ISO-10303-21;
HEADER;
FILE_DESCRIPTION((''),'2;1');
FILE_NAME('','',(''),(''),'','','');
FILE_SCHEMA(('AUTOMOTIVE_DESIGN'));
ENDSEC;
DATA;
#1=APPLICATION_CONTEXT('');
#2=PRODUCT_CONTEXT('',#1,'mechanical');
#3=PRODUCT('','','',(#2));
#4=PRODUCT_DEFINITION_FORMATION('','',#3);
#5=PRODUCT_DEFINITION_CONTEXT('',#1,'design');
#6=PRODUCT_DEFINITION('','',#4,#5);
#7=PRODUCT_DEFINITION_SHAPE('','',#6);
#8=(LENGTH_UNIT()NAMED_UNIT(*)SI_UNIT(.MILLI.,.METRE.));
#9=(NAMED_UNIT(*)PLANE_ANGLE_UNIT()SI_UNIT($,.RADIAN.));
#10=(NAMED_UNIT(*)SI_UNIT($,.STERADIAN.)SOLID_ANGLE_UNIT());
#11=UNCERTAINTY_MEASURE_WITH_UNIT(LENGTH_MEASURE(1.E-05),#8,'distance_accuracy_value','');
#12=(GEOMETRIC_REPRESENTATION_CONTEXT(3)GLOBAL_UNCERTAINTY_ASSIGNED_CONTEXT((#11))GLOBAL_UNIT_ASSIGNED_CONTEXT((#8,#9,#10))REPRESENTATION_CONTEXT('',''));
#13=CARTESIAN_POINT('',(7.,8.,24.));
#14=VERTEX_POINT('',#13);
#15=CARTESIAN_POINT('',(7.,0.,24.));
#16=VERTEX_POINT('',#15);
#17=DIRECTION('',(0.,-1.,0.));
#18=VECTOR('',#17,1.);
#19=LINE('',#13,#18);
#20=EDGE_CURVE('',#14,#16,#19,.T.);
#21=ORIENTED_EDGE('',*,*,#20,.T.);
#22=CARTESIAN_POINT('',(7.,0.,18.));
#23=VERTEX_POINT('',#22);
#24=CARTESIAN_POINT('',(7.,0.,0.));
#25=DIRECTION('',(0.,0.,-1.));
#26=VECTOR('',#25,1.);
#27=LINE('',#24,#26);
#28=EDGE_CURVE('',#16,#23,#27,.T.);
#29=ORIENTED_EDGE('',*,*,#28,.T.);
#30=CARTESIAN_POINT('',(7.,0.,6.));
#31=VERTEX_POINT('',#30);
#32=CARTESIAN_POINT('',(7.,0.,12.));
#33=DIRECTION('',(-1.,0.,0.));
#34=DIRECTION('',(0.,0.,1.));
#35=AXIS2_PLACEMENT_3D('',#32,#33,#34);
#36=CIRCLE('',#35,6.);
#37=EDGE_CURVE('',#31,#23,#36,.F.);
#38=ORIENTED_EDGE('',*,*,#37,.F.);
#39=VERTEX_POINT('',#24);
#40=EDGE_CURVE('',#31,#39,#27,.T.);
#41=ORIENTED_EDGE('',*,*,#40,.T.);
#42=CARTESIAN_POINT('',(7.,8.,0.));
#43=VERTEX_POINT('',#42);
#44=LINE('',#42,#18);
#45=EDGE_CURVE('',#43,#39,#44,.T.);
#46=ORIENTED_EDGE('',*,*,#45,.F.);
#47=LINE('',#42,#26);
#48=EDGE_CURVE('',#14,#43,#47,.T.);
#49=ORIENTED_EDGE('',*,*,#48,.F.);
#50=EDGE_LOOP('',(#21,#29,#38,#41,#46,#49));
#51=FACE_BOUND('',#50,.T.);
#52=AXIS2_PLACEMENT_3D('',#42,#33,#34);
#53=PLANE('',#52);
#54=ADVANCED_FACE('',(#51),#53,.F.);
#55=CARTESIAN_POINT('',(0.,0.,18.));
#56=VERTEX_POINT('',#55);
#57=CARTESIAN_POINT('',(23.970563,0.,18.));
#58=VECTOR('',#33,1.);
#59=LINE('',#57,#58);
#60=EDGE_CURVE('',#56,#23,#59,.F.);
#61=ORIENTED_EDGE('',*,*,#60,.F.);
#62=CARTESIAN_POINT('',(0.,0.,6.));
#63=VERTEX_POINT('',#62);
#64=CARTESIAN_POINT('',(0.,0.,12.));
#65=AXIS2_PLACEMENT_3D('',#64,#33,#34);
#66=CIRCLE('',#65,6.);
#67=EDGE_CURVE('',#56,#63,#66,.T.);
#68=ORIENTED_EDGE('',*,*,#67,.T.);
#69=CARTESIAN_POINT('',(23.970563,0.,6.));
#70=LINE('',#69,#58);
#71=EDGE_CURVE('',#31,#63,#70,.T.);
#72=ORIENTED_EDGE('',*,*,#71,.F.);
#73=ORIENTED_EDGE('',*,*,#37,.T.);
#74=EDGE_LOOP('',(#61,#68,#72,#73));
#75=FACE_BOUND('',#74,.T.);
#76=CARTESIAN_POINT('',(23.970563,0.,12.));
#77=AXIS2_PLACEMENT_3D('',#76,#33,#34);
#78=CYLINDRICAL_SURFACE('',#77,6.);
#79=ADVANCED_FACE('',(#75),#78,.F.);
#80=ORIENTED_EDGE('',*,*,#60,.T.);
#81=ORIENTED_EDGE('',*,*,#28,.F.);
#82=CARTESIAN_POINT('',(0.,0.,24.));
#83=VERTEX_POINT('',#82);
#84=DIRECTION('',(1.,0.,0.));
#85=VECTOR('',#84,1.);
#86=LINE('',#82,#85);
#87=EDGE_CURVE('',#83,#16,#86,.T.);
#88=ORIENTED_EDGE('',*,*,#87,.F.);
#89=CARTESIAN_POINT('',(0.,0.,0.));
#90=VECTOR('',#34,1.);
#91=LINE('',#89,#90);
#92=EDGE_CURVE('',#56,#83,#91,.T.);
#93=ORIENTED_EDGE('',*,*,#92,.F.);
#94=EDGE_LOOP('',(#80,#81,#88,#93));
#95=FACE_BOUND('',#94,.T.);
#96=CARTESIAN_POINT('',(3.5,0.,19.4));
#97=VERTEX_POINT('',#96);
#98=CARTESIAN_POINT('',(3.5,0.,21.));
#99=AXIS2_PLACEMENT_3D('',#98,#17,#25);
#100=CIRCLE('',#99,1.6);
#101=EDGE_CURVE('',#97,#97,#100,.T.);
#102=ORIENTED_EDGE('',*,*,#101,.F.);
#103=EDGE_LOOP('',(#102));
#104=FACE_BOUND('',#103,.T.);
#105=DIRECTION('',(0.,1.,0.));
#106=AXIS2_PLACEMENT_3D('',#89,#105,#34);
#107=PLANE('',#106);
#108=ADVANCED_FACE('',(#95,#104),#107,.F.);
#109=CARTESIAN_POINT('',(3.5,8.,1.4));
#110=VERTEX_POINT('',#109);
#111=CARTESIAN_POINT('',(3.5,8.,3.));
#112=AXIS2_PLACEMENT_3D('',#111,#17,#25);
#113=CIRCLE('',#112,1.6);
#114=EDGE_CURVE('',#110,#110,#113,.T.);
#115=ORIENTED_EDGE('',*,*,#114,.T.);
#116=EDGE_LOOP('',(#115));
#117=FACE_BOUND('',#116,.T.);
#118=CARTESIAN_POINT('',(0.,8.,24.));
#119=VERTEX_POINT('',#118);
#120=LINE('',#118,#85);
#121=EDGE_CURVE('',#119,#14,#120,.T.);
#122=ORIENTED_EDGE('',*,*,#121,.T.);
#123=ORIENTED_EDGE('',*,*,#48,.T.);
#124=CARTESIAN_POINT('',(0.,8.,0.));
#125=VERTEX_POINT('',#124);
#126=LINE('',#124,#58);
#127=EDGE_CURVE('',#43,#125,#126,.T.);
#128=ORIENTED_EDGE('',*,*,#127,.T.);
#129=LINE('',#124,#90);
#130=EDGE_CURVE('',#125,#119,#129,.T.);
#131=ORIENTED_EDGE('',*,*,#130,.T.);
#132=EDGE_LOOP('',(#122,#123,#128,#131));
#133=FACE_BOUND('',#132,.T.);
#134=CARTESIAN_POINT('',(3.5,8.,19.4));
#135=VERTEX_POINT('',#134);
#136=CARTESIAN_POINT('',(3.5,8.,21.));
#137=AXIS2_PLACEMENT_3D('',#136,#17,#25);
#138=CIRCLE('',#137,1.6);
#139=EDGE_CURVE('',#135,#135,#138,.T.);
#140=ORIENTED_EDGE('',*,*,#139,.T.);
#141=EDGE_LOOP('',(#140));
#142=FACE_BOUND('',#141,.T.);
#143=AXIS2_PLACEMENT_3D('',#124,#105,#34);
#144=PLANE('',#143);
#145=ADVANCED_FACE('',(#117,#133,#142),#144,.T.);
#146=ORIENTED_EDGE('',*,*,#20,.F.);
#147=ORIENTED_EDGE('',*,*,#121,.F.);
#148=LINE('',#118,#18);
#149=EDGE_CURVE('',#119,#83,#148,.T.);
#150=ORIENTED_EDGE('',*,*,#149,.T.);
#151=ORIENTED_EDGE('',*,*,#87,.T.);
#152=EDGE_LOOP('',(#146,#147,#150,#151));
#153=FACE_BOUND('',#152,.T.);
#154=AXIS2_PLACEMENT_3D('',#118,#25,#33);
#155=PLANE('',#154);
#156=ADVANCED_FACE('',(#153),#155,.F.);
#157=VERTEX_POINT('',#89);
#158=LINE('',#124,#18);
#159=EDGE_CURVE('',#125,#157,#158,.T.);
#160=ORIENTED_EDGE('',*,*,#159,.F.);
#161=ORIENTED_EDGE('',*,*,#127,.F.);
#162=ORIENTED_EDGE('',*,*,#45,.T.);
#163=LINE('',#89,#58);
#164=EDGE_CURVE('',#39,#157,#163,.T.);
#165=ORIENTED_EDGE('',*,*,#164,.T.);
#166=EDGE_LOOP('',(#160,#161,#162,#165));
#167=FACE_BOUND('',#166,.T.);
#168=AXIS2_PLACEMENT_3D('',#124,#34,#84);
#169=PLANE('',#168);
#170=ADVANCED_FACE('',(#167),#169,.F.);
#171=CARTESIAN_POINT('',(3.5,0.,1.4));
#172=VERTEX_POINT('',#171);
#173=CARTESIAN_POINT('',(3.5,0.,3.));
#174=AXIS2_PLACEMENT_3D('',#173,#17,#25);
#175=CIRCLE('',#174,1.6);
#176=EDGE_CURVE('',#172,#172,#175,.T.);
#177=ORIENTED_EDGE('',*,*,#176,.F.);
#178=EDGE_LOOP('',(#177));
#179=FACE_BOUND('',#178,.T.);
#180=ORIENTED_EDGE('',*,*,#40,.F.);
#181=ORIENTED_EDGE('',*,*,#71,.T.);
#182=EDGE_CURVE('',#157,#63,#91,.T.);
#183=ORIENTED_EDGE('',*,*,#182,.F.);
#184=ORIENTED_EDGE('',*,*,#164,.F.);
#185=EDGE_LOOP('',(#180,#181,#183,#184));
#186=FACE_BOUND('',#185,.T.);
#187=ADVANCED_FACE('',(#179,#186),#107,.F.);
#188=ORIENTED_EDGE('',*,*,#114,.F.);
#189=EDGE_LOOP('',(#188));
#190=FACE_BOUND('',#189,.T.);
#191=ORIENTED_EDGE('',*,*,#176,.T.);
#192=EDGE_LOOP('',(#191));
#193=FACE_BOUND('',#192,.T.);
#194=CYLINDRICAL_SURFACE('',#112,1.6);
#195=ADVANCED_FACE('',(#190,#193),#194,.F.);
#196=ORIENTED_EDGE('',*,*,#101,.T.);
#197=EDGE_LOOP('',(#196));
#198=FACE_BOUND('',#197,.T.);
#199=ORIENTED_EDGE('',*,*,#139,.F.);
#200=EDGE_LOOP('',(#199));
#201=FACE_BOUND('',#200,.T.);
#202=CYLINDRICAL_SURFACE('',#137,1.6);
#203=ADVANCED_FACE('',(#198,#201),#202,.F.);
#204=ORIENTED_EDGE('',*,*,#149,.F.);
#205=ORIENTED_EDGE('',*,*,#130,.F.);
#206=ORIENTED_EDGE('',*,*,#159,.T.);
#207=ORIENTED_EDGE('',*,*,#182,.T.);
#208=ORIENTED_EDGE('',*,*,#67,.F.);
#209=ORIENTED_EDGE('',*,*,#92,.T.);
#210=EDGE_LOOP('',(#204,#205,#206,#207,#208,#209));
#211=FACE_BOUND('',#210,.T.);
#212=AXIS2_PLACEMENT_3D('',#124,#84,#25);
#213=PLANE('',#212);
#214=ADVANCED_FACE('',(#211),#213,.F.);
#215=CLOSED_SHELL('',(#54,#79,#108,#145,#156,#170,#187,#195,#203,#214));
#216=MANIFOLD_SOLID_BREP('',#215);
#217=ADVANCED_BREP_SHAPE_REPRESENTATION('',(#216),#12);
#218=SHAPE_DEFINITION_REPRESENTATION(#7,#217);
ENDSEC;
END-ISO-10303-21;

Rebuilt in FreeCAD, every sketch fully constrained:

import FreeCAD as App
import Part
import Sketcher

V = App.Vector
Q = App.Units.Quantity

doc = App.newDocument("Part")
body = doc.addObject("PartDesign::Body", "Body")

sketch1 = body.newObject("Sketcher::SketchObject", "Sketch")
sketch1.AttachmentSupport = (doc.getObject("XZ_Plane"), [""])
sketch1.MapMode = "FlatFace"
sketch1.addGeometry(Part.LineSegment(V(0, 0, 0), V(0, 24, 0)), False)
sketch1.addGeometry(Part.LineSegment(V(0, 24, 0), V(7, 24, 0)), False)
sketch1.addGeometry(Part.LineSegment(V(7, 24, 0), V(7, 0, 0)), False)
sketch1.addGeometry(Part.LineSegment(V(7, 0, 0), V(0, 0, 0)), False)
sketch1.addConstraint(Sketcher.Constraint("Coincident", 0, 2, 1, 1))
sketch1.addConstraint(Sketcher.Constraint("Coincident", 1, 2, 2, 1))
sketch1.addConstraint(Sketcher.Constraint("Coincident", 2, 2, 3, 1))
sketch1.addConstraint(Sketcher.Constraint("Coincident", 3, 2, 0, 1))
sketch1.addConstraint(Sketcher.Constraint("Vertical", 0))
sketch1.addConstraint(Sketcher.Constraint("Horizontal", 1))
sketch1.addConstraint(Sketcher.Constraint("Vertical", 2))
sketch1.addConstraint(Sketcher.Constraint("Horizontal", 3))
sketch1.addConstraint(Sketcher.Constraint("Coincident", 3, 2, -1, 1))
sketch1.addConstraint(Sketcher.Constraint("DistanceX", 1, 1, 1, 2, Q("7 mm")))
sketch1.addConstraint(Sketcher.Constraint("DistanceY", 0, 1, 0, 2, Q("24 mm")))
pad1 = body.newObject("PartDesign::Pad", "Pad")
pad1.Profile = sketch1
pad1.Length = 8
pad1.Reversed = True

sketch2 = body.newObject("Sketcher::SketchObject", "Sketch001")
sketch2.AttachmentSupport = (doc.getObject("YZ_Plane"), [""])
sketch2.MapMode = "FlatFace"
sketch2.addGeometry(Part.Circle(V(0, 12, 0), V(0, 0, 1), 6), False)
sketch2.addConstraint(Sketcher.Constraint("PointOnObject", 0, 3, -2))
sketch2.addConstraint(Sketcher.Constraint("Diameter", 0, Q("12 mm")))
sketch2.addConstraint(Sketcher.Constraint("DistanceY", -1, 1, 0, 3, Q("12 mm")))
pocket1 = body.newObject("PartDesign::Pocket", "Pocket")
pocket1.Profile = sketch2
pocket1.Length = 7
pocket1.Reversed = True

sketch3 = body.newObject("Sketcher::SketchObject", "Sketch002")
sketch3.AttachmentSupport = (doc.getObject("XZ_Plane"), [""])
sketch3.MapMode = "FlatFace"
sketch3.addGeometry(Part.Circle(V(3.5, 21, 0), V(0, 0, 1), 1.6), False)
sketch3.addGeometry(Part.Circle(V(3.5, 3, 0), V(0, 0, 1), 1.6), False)
sketch3.addConstraint(Sketcher.Constraint("Equal", 0, 1))
sketch3.addConstraint(Sketcher.Constraint("Vertical", 0, 3, 1, 3))
sketch3.addConstraint(Sketcher.Constraint("Diameter", 0, Q("3.2 mm")))
sketch3.addConstraint(Sketcher.Constraint("DistanceY", -1, 1, 0, 3, Q("21 mm")))
sketch3.addConstraint(Sketcher.Constraint("DistanceY", -1, 1, 1, 3, Q("3 mm")))
sketch3.addConstraint(Sketcher.Constraint("DistanceX", -1, 1, 0, 3, Q("3.5 mm")))
pocket2 = body.newObject("PartDesign::Pocket", "Pocket001")
pocket2.Profile = sketch3
pocket2.Type = "ThroughAll"

doc.recompute()
